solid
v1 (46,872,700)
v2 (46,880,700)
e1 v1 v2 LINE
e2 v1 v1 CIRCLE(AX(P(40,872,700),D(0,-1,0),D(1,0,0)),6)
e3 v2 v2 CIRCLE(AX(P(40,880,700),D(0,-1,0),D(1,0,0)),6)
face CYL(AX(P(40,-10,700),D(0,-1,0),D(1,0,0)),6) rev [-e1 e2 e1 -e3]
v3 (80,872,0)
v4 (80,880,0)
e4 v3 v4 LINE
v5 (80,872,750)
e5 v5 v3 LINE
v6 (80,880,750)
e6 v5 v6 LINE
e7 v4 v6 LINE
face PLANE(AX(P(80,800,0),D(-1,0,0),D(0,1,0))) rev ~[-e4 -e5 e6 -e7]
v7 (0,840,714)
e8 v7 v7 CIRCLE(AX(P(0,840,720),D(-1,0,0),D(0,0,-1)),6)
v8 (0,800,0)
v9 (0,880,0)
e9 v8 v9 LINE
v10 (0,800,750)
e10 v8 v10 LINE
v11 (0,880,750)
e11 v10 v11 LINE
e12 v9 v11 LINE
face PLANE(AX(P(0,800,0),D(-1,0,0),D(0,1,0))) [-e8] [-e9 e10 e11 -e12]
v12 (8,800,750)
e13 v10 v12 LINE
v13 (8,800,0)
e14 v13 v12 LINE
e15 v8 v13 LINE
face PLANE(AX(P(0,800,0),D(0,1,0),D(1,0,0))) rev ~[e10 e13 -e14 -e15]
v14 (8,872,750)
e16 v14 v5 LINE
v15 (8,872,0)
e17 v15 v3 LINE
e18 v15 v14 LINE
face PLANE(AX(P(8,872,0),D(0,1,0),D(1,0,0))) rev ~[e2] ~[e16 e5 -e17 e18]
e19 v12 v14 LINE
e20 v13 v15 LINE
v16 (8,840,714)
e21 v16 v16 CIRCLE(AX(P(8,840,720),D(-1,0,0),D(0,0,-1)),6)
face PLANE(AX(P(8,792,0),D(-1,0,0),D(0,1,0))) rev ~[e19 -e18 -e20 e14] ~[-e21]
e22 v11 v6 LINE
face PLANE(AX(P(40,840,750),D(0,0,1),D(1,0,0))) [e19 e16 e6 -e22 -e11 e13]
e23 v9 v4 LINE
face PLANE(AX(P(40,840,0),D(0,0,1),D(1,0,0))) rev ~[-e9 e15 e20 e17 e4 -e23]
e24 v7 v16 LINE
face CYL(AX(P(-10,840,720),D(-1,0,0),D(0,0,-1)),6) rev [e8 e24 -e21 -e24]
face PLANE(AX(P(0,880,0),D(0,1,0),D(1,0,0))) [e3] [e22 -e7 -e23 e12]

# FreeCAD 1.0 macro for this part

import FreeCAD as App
import Part
import Sketcher

V = App.Vector

doc = App.newDocument("Part")
body = doc.addObject("PartDesign::Body", "Body")

# Sketch on XY plane
sketch1 = doc.addObject("Sketcher::SketchObject", "Sketch")
body.addObject(sketch1)
sketch1.AttachmentSupport = (doc.XY_Plane, [""])
sketch1.MapMode = "FlatFace"
sketch1.addGeometry(Part.Circle(V(0, 0, 0), V(0, 0, 1), 6), False)
sketch1.addConstraint(Sketcher.Constraint("Coincident", 0, 3, -1, 1))
sketch1.addConstraint(Sketcher.Constraint("Diameter", 0, 12.0))
pad1 = doc.addObject("PartDesign::Pad", "Pad")
body.addObject(pad1)
pad1.Profile = sketch1
pad1.Length = 1300
body2 = doc.addObject("PartDesign::Body", "Body001")
doc.recompute()

body.Placement = App.Placement(V(0, 0, 0), App.Rotation(V(0, 1, 0), 90))
boolean = doc.addObject("PartDesign::Boolean", "Boolean")
body2.addObject(boolean)
boolean.Type = "Fuse"
boolean.addObjects([body])
body3 = doc.addObject("PartDesign::Body", "Body002")
doc.recompute()

body2.Placement = App.Placement(V(-10, 840, 720), App.Rotation(V(0, 0, 1), 0))
boolean2 = doc.addObject("PartDesign::Boolean", "Boolean001")
body3.addObject(boolean2)
boolean2.Type = "Fuse"
boolean2.addObjects([body2])
body4 = doc.addObject("PartDesign::Body", "Body003")

# Sketch on XY plane
sketch2 = doc.addObject("Sketcher::SketchObject", "Sketch001")
body4.addObject(sketch2)
sketch2.AttachmentSupport = (doc.getObject("XY_Plane003"), [""])
sketch2.MapMode = "FlatFace"
sketch2.addGeometry(Part.Circle(V(0, 0, 0), V(0, 0, 1), 6), False)
sketch2.addConstraint(Sketcher.Constraint("Coincident", 0, 3, -1, 1))
sketch2.addConstraint(Sketcher.Constraint("Diameter", 0, 12.0))
pad2 = doc.addObject("PartDesign::Pad", "Pad001")
body4.addObject(pad2)
pad2.Profile = sketch2
pad2.Length = 900
body5 = doc.addObject("PartDesign::Body", "Body004")
doc.recompute()

body4.Placement = App.Placement(V(0, 0, 0), App.Rotation(V(1, 0, 0), 270))
boolean3 = doc.addObject("PartDesign::Boolean", "Boolean002")
body5.addObject(boolean3)
boolean3.Type = "Fuse"
boolean3.addObjects([body4])
body6 = doc.addObject("PartDesign::Body", "Body005")
doc.recompute()

body5.Placement = App.Placement(V(40, -10, 700), App.Rotation(V(0, 0, 1), 0))
boolean4 = doc.addObject("PartDesign::Boolean", "Boolean003")
body6.addObject(boolean4)
boolean4.Type = "Fuse"
boolean4.addObjects([body5])
body7 = doc.addObject("PartDesign::Body", "Body006")

# Sketch on XY plane
sketch3 = doc.addObject("Sketcher::SketchObject", "Sketch002")
body7.addObject(sketch3)
sketch3.AttachmentSupport = (doc.getObject("XY_Plane006"), [""])
sketch3.MapMode = "FlatFace"
sketch3.addGeometry(Part.LineSegment(V(8, 872, 0), V(8, 792, 0)), False)
sketch3.addGeometry(Part.LineSegment(V(8, 792, 0), V(88, 792, 0)), False)
sketch3.addGeometry(Part.LineSegment(V(88, 792, 0), V(88, 872, 0)), False)
sketch3.addGeometry(Part.LineSegment(V(88, 872, 0), V(8, 872, 0)), False)
sketch3.addConstraint(Sketcher.Constraint("Coincident", 0, 2, 1, 1))
sketch3.addConstraint(Sketcher.Constraint("Coincident", 1, 2, 2, 1))
sketch3.addConstraint(Sketcher.Constraint("Coincident", 2, 2, 3, 1))
sketch3.addConstraint(Sketcher.Constraint("Coincident", 3, 2, 0, 1))
sketch3.addConstraint(Sketcher.Constraint("Vertical", 0))
sketch3.addConstraint(Sketcher.Constraint("Horizontal", 1))
sketch3.addConstraint(Sketcher.Constraint("Vertical", 2))
sketch3.addConstraint(Sketcher.Constraint("Horizontal", 3))
sketch3.addConstraint(Sketcher.Constraint("Equal", 3, 0))
sketch3.addConstraint(Sketcher.Constraint("DistanceX", 1, 1, 1, 2, 80.0))
sketch3.addConstraint(Sketcher.Constraint("DistanceX", -1, 1, 0, 2, 8.0))
sketch3.addConstraint(Sketcher.Constraint("DistanceY", -1, 1, 0, 2, 792.0))
pad3 = doc.addObject("PartDesign::Pad", "Pad002")
body7.addObject(pad3)
pad3.Profile = sketch3
pad3.Length = 750
body8 = doc.addObject("PartDesign::Body", "Body007")

# Sketch on XY plane
sketch4 = doc.addObject("Sketcher::SketchObject", "Sketch003")
body8.addObject(sketch4)
sketch4.AttachmentSupport = (doc.getObject("XY_Plane007"), [""])
sketch4.MapMode = "FlatFace"
sketch4.addGeometry(Part.LineSegment(V(0, 880, 0), V(0, 800, 0)), False)
sketch4.addGeometry(Part.LineSegment(V(0, 800, 0), V(80, 800, 0)), False)
sketch4.addGeometry(Part.LineSegment(V(80, 800, 0), V(80, 880, 0)), False)
sketch4.addGeometry(Part.LineSegment(V(80, 880, 0), V(0, 880, 0)), False)
sketch4.addConstraint(Sketcher.Constraint("Coincident", 0, 2, 1, 1))
sketch4.addConstraint(Sketcher.Constraint("Coincident", 1, 2, 2, 1))
sketch4.addConstraint(Sketcher.Constraint("Coincident", 2, 2, 3, 1))
sketch4.addConstraint(Sketcher.Constraint("Coincident", 3, 2, 0, 1))
sketch4.addConstraint(Sketcher.Constraint("Vertical", 0))
sketch4.addConstraint(Sketcher.Constraint("Horizontal", 1))
sketch4.addConstraint(Sketcher.Constraint("Vertical", 2))
sketch4.addConstraint(Sketcher.Constraint("Horizontal", 3))
sketch4.addConstraint(Sketcher.Constraint("PointOnObject", 0, 2, -2))
sketch4.addConstraint(Sketcher.Constraint("Equal", 3, 0))
sketch4.addConstraint(Sketcher.Constraint("DistanceX", 1, 1, 1, 2, 80.0))
sketch4.addConstraint(Sketcher.Constraint("DistanceY", -1, 1, 0, 2, 800.0))
pad4 = doc.addObject("PartDesign::Pad", "Pad003")
body8.addObject(pad4)
pad4.Profile = sketch4
pad4.Length = 750
doc.recompute()

boolean5 = doc.addObject("PartDesign::Boolean", "Boolean004")
body8.addObject(boolean5)
boolean5.Type = "Cut"
boolean5.addObjects([body7])
doc.recompute()

boolean6 = doc.addObject("PartDesign::Boolean", "Boolean005")
body8.addObject(boolean6)
boolean6.Type = "Cut"
boolean6.addObjects([body6])
doc.recompute()

boolean7 = doc.addObject("PartDesign::Boolean", "Boolean006")
body8.addObject(boolean7)
boolean7.Type = "Cut"
boolean7.addObjects([body3])

doc.recompute()
